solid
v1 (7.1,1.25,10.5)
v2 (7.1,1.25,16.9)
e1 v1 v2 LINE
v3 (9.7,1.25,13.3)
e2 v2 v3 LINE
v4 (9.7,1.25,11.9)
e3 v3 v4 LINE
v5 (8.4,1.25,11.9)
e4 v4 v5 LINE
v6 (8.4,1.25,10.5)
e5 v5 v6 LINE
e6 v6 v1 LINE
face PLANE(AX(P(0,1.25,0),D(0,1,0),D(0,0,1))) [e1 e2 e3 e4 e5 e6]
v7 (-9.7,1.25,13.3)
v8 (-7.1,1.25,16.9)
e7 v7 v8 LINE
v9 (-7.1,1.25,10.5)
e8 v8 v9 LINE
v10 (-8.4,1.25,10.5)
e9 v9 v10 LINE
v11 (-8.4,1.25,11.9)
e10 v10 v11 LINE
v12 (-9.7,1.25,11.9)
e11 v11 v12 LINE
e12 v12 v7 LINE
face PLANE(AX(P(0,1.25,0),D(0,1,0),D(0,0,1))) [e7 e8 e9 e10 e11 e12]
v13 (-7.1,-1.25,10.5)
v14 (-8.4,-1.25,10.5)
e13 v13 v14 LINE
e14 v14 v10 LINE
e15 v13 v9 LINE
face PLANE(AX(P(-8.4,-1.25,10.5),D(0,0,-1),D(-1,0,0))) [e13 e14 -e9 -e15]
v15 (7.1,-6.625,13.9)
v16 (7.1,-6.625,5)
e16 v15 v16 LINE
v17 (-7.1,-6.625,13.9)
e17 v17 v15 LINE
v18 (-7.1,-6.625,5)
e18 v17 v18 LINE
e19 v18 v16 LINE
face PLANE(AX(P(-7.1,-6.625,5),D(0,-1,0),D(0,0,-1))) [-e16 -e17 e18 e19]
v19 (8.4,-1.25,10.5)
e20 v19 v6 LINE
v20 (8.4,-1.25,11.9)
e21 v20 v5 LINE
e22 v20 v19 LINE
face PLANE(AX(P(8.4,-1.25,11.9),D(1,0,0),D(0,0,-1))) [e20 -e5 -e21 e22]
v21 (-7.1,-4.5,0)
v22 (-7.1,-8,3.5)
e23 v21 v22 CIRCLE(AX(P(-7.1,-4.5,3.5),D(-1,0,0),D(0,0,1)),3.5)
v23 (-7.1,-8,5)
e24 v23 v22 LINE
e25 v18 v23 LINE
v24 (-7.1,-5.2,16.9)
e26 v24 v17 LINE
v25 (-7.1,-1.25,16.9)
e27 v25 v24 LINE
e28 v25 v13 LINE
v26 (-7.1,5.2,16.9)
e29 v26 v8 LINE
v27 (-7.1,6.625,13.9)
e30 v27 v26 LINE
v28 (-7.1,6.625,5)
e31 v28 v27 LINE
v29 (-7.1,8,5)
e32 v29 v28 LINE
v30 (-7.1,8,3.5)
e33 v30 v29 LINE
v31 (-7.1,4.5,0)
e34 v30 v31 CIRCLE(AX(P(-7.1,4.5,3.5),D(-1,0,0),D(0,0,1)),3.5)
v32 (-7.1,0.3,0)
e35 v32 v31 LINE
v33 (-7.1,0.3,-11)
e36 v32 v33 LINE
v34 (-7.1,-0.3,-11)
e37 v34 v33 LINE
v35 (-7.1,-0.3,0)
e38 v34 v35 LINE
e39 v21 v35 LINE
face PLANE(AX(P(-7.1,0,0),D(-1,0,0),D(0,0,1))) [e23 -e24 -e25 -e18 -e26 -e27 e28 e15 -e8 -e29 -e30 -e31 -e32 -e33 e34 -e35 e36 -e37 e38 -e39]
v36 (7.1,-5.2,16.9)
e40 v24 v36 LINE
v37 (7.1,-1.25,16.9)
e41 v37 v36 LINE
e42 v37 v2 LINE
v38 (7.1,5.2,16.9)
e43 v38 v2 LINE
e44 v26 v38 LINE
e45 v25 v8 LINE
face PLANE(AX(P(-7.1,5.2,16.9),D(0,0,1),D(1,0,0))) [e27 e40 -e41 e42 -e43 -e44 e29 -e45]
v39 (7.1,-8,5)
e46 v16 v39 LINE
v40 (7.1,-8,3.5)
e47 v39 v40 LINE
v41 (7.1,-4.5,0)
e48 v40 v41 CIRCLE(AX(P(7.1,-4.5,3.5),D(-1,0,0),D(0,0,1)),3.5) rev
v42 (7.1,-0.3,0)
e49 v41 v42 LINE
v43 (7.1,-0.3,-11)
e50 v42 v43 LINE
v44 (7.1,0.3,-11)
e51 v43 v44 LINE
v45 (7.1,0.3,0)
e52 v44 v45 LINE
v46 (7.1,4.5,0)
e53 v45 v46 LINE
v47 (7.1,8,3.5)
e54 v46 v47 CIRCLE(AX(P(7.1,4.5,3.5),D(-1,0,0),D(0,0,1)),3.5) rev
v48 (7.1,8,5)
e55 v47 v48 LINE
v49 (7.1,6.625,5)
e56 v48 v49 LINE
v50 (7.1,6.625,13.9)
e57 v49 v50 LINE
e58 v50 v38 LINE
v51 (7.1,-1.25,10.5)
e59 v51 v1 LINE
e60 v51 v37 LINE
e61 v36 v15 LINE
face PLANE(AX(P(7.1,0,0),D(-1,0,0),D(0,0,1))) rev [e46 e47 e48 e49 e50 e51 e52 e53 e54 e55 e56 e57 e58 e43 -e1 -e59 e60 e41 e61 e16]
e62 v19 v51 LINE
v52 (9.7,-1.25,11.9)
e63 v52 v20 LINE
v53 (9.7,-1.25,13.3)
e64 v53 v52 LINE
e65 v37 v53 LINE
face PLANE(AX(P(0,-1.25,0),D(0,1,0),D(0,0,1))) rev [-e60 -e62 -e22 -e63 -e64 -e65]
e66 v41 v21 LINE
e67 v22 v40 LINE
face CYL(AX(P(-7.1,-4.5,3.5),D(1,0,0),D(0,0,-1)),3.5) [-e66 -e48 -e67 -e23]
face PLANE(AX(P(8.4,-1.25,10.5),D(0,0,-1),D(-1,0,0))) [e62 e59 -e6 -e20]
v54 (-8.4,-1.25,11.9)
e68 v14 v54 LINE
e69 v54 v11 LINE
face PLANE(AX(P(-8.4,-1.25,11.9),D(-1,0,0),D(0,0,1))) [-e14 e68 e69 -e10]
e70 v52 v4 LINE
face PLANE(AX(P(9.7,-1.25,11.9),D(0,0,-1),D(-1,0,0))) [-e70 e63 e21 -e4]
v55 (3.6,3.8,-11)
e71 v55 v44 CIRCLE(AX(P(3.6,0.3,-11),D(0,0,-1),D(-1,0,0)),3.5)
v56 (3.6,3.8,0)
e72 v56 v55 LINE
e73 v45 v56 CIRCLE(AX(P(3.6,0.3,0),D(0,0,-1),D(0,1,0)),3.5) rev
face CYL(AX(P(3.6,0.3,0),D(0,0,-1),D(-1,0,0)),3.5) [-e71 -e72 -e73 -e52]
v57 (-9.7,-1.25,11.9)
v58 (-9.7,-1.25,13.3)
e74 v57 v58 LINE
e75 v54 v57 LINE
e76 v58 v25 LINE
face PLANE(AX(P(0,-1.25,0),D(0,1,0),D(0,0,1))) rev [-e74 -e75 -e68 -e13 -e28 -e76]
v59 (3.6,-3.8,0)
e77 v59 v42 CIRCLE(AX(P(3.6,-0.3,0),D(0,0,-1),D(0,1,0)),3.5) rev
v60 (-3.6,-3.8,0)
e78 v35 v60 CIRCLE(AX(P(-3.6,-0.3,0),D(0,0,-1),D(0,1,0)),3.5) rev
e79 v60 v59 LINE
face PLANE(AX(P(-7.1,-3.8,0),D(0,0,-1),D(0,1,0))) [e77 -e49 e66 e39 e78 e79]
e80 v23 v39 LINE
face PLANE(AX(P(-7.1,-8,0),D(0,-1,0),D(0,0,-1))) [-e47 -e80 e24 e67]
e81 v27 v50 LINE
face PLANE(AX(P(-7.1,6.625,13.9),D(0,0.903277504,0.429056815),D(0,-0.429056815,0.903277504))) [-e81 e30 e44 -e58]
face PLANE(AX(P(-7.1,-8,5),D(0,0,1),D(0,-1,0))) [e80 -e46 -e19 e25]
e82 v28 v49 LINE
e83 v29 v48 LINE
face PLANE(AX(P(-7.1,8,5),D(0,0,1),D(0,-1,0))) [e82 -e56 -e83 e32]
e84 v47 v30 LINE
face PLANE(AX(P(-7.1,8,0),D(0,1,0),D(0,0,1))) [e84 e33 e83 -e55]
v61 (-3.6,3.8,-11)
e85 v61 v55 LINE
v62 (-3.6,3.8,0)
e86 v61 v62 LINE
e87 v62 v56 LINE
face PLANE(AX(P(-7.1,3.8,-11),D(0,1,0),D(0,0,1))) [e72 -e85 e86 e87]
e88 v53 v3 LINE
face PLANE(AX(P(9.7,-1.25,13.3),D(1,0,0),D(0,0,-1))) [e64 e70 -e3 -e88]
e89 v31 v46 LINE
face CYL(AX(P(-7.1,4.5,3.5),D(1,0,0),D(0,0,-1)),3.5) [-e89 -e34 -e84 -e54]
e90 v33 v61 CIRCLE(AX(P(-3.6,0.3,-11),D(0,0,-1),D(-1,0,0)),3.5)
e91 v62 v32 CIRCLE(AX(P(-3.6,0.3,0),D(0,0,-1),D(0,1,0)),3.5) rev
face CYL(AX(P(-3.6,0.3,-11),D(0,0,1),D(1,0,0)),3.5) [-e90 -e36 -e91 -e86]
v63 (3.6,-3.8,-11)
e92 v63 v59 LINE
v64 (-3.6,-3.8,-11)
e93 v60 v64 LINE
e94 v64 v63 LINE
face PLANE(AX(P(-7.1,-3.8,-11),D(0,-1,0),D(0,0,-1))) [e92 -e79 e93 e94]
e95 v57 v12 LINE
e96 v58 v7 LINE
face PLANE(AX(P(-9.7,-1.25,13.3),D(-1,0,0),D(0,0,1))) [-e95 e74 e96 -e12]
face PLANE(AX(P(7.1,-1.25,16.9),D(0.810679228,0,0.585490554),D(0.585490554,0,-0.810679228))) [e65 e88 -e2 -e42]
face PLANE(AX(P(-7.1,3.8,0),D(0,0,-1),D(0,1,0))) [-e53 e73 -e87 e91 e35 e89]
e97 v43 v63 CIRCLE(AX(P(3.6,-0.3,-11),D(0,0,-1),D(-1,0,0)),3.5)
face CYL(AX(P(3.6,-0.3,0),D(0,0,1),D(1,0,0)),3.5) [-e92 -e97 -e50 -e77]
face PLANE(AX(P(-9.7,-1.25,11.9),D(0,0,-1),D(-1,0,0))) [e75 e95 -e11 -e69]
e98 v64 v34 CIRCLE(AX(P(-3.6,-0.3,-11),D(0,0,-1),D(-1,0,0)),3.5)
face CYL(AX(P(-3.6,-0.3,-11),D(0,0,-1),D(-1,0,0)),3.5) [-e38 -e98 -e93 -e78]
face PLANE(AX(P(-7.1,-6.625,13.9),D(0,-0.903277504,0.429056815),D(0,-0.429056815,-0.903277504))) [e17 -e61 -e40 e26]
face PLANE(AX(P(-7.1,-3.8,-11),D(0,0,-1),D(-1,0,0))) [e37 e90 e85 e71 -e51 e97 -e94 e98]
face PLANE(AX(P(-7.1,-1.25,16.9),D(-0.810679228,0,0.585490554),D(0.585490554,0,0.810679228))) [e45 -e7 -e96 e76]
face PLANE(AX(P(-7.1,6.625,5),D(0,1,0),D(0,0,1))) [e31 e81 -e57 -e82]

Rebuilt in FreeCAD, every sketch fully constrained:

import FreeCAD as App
import Part
import Sketcher
Q = App.Units.Quantity


def edges_at(feature, points):
    """Names of the edges that pass closest to the given points."""
    edges = feature.Shape.Edges
    near = lambda p: min(range(len(edges)), key=lambda i: edges[i].distToShape(Part.Vertex(*p))[0])
    return sorted({f"Edge{near(p) + 1}" for p in points})


def add_polygon(sketch, points):
    """Adds a closed chain of lines whose ends are joined by coincident constraints."""
    first, n = sketch.GeometryCount, len(points)
    for a, b in zip(points, points[1:] + points[:1]):
        sketch.addGeometry(Part.LineSegment(App.Vector(*a, 0), App.Vector(*b, 0)), False)
    for i in range(n):
        sketch.addConstraint(Sketcher.Constraint("Coincident", first + i, 2, first + (i + 1) % n, 1))

doc = App.newDocument("Part")
body = doc.addObject("PartDesign::Body", "Body")

# Sketch on YZ plane
sketch1 = doc.addObject("Sketcher::SketchObject", "Sketch")
body.addObject(sketch1)
sketch1.AttachmentSupport = (doc.YZ_Plane, [""])
sketch1.MapMode = "FlatFace"
add_polygon(sketch1, [(-3.8, -11), (3.8, -11), (3.8, 0), (8, 0), (8, 5), (6.6, 5), (6.6, 13.9), (5.2, 16.9), (-5.2, 16.9), (-6.6, 13.9), (-6.6, 5), (-8, 5), (-8, 0), (-3.8, 0)])  # lines 0-13
sketch1.addConstraint([
    Sketcher.Constraint("Horizontal", 0),
    Sketcher.Constraint("Vertical", 1),
    Sketcher.Constraint("Horizontal", 2),
    Sketcher.Constraint("Vertical", 3),
    Sketcher.Constraint("Horizontal", 4),
    Sketcher.Constraint("Vertical", 5),
    Sketcher.Constraint("Horizontal", 7),
    Sketcher.Constraint("Vertical", 9),
    Sketcher.Constraint("Horizontal", 10),
    Sketcher.Constraint("Vertical", 11),
    Sketcher.Constraint("Horizontal", 12),
    Sketcher.Constraint("Vertical", 13),
    Sketcher.Constraint("Symmetric", 2, 2, 11, 2, -1, 1),
    Sketcher.Constraint("Symmetric", 5, 2, 8, 2, -2),
    Sketcher.Constraint("Symmetric", 1, 2, 12, 2, -2),
    Sketcher.Constraint("Horizontal", 4, 2, 9, 2),
    Sketcher.Constraint("Equal", 6, 8),
    Sketcher.Constraint("DistanceY", 1, 1, 1, 2, Q("11 mm")),
    Sketcher.Constraint("DistanceY", 3, 1, 3, 2, Q("5 mm")),
    Sketcher.Constraint("DistanceX", 0, 1, 0, 2, Q("7.6 mm")),
    Sketcher.Constraint("DistanceX", 2, 1, 2, 2, Q("4.2 mm")),
    Sketcher.Constraint("DistanceX", 7, 2, 7, 1, Q("10.4 mm")),
    Sketcher.Constraint("DistanceY", 5, 1, 5, 2, Q("8.9 mm")),
    Sketcher.Constraint("DistanceY", 5, 2, 6, 2, Q("3 mm")),
    Sketcher.Constraint("DistanceX", 4, 2, 4, 1, Q("1.375 mm")),
])
pad1 = doc.addObject("PartDesign::Pad", "Pad")
body.addObject(pad1)
pad1.Profile = sketch1
pad1.Type = "TwoLengths"
pad1.Length = 7.1
pad1.Length2 = 7.1
doc.recompute()

fillet = doc.addObject("PartDesign::Fillet", "Fillet")
body.addObject(fillet)
fillet.Base = (pad1, edges_at(pad1, [
    (0, -8, 0),
    (0, 8, 0),
    (7.1, 3.8, -5.5),
    (7.1, -3.8, -5.5),
    (-7.1, 3.8, -5.5),
    (-7.1, -3.8, -5.5),
]))
fillet.Radius = 3.5

# Sketch on XZ plane
sketch2 = doc.addObject("Sketcher::SketchObject", "Sketch001")
body.addObject(sketch2)
sketch2.AttachmentSupport = (doc.XZ_Plane, [""])
sketch2.MapMode = "FlatFace"
add_polygon(sketch2, [(-9.7, 13.3), (-7.1, 16.9), (-7.1, 10.5), (-8.4, 10.5), (-8.4, 11.9), (-9.7, 11.9)])  # lines 0-5
add_polygon(sketch2, [(7.1, 10.5), (7.1, 16.9), (9.7, 13.3), (9.7, 11.9), (8.4, 11.9), (8.4, 10.5)])  # lines 6-11
sketch2.addConstraint([
    Sketcher.Constraint("Vertical", 1),
    Sketcher.Constraint("Horizontal", 2),
    Sketcher.Constraint("Vertical", 3),
    Sketcher.Constraint("Horizontal", 4),
    Sketcher.Constraint("Vertical", 5),
    Sketcher.Constraint("Vertical", 6),
    Sketcher.Constraint("Vertical", 8),
    Sketcher.Constraint("Horizontal", 9),
    Sketcher.Constraint("Vertical", 10),
    Sketcher.Constraint("Horizontal", 11),
    Sketcher.Constraint("Symmetric", 0, 2, 6, 2, -2),
    Sketcher.Constraint("Symmetric", 5, 2, 7, 2, -2),
    Sketcher.Constraint("Symmetric", 3, 2, 9, 2, -2),
    Sketcher.Constraint("Horizontal", 2, 2, 10, 2),
    Sketcher.Constraint("Equal", 2, 4),
    Sketcher.Constraint("Equal", 3, 5),
    Sketcher.Constraint("DistanceX", 2, 2, 2, 1, Q("1.3 mm")),
    Sketcher.Constraint("DistanceY", 1, 2, 1, 1, Q("6.4 mm")),
    Sketcher.Constraint("DistanceY", 3, 1, 3, 2, Q("1.4 mm")),
    Sketcher.Constraint("DistanceX", 0, 2, -1, 1, Q("7.1 mm")),
    Sketcher.Constraint("DistanceY", -1, 1, 0, 2, Q("16.9 mm")),
])
pad2 = doc.addObject("PartDesign::Pad", "Pad001")
body.addObject(pad2)
pad2.Profile = sketch2
pad2.Type = "TwoLengths"
pad2.Length = 1.25
pad2.Length2 = 1.25
pad2.Reversed = True

doc.recompute()
